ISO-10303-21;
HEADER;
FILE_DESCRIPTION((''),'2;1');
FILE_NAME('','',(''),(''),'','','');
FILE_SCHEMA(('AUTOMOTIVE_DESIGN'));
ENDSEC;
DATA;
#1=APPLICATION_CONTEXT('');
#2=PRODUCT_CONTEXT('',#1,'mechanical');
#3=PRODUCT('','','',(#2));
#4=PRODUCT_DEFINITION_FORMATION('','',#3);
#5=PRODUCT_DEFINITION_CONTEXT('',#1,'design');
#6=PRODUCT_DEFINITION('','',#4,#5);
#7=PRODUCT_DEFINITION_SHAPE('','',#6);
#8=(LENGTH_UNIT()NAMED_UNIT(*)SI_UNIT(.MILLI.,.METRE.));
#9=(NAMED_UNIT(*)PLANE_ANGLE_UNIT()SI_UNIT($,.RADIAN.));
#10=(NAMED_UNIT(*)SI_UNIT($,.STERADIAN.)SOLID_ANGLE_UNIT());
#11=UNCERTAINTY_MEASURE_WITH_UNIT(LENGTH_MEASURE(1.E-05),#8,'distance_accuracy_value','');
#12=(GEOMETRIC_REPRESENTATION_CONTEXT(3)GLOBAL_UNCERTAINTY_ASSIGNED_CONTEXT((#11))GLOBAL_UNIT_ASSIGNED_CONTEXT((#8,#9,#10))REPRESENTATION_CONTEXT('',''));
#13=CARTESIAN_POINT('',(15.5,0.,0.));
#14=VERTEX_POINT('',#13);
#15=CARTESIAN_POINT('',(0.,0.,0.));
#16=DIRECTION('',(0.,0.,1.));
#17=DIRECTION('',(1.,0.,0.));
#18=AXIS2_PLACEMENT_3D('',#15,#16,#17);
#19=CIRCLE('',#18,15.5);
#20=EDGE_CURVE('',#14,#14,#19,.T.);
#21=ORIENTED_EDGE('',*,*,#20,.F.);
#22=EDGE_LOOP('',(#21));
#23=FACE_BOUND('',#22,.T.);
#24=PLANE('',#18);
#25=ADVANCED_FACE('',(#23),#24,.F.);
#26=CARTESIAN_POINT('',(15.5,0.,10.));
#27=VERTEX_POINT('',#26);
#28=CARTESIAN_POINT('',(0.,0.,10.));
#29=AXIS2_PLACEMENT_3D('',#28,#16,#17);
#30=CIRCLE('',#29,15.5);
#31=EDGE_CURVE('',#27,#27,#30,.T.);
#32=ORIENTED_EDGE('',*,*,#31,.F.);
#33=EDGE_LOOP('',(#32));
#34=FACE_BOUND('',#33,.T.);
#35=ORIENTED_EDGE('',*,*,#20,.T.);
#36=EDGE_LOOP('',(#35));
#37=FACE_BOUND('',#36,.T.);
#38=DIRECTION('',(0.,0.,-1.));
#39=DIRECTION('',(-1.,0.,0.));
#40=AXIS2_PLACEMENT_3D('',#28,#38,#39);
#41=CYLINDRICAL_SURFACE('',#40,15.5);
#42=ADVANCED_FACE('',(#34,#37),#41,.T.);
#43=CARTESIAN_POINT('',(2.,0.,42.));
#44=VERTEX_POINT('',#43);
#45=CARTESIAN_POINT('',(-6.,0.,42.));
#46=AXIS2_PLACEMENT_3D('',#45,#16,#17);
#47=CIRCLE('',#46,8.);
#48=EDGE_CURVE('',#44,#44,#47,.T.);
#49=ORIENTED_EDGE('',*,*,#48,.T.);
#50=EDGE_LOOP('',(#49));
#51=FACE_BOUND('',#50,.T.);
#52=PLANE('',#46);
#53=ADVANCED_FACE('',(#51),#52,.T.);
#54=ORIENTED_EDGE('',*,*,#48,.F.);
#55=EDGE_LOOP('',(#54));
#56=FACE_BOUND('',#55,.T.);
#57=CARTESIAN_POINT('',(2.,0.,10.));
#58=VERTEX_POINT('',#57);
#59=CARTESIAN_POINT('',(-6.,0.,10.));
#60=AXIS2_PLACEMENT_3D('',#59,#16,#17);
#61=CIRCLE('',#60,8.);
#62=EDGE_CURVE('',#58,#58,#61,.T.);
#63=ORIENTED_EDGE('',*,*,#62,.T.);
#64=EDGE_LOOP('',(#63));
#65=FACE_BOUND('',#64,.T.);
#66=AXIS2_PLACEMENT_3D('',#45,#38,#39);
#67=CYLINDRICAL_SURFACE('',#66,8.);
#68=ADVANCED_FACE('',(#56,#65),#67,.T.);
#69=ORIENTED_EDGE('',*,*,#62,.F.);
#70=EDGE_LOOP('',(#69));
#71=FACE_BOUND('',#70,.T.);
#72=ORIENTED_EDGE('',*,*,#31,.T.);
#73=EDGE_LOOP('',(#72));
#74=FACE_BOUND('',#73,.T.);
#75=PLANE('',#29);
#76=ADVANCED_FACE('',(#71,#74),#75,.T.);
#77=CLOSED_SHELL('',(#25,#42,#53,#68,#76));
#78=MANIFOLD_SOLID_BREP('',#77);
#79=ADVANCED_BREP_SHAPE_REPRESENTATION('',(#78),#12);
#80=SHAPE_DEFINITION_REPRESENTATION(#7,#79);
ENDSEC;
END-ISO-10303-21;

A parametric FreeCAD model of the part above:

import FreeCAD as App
import Part
import Sketcher

doc = App.newDocument("Part")
body = doc.addObject("PartDesign::Body", "Body")

sketch1 = doc.addObject("Sketcher::SketchObject", "Sketch")
body.addObject(sketch1)
sketch1.AttachmentSupport = (doc.XY_Plane, [""])
sketch1.MapMode = "FlatFace"
sketch1.addGeometry(Part.Circle(App.Vector(0, 0, 0), App.Vector(0, 0, 1), 16), False)
sketch1.addConstraint([
    Sketcher.Constraint("Coincident", 0, 3, -1, 1),
    Sketcher.Constraint("Diameter", 0, 31.0),
])
pad1 = doc.addObject("PartDesign::Pad", "Pad")
body.addObject(pad1)
pad1.Profile = sketch1
pad1.Length = 10

sketch2 = doc.addObject("Sketcher::SketchObject", "Sketch001")
body.addObject(sketch2)
sketch2.AttachmentSupport = (doc.XY_Plane, [""])
sketch2.MapMode = "FlatFace"
sketch2.AttachmentOffset = App.Placement(App.Vector(0, 0, 10), App.Rotation())
sketch2.addGeometry(Part.Circle(App.Vector(-6, 0, 0), App.Vector(0, 0, 1), 8), False)
sketch2.addConstraint([
    Sketcher.Constraint("PointOnObject", 0, 3, -1),
    Sketcher.Constraint("Diameter", 0, 16.0),
    Sketcher.Constraint("DistanceX", 0, 3, -1, 1, 6.0),
])
pad2 = doc.addObject("PartDesign::Pad", "Pad001")
body.addObject(pad2)
pad2.Profile = sketch2
pad2.Length = 32

doc.recompute()
